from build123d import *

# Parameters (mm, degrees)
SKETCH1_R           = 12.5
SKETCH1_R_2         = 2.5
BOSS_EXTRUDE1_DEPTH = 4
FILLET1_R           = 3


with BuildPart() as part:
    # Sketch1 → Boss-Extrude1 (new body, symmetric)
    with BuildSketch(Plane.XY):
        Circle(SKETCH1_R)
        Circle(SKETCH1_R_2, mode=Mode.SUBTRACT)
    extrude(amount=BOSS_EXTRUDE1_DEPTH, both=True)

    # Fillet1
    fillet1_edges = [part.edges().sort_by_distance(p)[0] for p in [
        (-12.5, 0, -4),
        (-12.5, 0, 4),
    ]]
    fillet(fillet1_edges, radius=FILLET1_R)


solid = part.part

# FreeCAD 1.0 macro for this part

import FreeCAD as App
import Part
import Sketcher


def edges_at(feature, points):
    """Names of the edges that pass closest to the given points."""
    edges = feature.Shape.Edges
    near = lambda p: min(range(len(edges)), key=lambda i: edges[i].distToShape(Part.Vertex(*p))[0])
    return sorted({f"Edge{near(p) + 1}" for p in points})

doc = App.newDocument("Part")
body = doc.addObject("PartDesign::Body", "Body")

sketch1 = body.newObject("Sketcher::SketchObject", "Sketch")
sketch1.AttachmentSupport = (doc.getObject("XY_Plane"), [""])
sketch1.MapMode = "FlatFace"
sketch1.addGeometry([
    Part.Circle(App.Vector(0, 0, 0), App.Vector(0, 0, 1), 12.5),
    Part.Circle(App.Vector(0, 0, 0), App.Vector(0, 0, 1), 2.5),
], False)
sketch1.addConstraint([
    Sketcher.Constraint("Coincident", 0, 3, -1, 1),
    Sketcher.Constraint("Coincident", 1, 3, -1, 1),
    Sketcher.Constraint("Diameter", 0, 25.0),
    Sketcher.Constraint("Diameter", 1, 5.0),
])
pad1 = body.newObject("PartDesign::Pad", "Pad")
pad1.Profile = sketch1
pad1.Length = 8
pad1.Midplane = True
doc.recompute()

fillet = body.newObject("PartDesign::Fillet", "Fillet")
fillet.Base = (pad1, edges_at(pad1, [(-12.5, 0, -4), (-12.5, 0, 4)]))
fillet.Radius = 3

doc.recompute()
